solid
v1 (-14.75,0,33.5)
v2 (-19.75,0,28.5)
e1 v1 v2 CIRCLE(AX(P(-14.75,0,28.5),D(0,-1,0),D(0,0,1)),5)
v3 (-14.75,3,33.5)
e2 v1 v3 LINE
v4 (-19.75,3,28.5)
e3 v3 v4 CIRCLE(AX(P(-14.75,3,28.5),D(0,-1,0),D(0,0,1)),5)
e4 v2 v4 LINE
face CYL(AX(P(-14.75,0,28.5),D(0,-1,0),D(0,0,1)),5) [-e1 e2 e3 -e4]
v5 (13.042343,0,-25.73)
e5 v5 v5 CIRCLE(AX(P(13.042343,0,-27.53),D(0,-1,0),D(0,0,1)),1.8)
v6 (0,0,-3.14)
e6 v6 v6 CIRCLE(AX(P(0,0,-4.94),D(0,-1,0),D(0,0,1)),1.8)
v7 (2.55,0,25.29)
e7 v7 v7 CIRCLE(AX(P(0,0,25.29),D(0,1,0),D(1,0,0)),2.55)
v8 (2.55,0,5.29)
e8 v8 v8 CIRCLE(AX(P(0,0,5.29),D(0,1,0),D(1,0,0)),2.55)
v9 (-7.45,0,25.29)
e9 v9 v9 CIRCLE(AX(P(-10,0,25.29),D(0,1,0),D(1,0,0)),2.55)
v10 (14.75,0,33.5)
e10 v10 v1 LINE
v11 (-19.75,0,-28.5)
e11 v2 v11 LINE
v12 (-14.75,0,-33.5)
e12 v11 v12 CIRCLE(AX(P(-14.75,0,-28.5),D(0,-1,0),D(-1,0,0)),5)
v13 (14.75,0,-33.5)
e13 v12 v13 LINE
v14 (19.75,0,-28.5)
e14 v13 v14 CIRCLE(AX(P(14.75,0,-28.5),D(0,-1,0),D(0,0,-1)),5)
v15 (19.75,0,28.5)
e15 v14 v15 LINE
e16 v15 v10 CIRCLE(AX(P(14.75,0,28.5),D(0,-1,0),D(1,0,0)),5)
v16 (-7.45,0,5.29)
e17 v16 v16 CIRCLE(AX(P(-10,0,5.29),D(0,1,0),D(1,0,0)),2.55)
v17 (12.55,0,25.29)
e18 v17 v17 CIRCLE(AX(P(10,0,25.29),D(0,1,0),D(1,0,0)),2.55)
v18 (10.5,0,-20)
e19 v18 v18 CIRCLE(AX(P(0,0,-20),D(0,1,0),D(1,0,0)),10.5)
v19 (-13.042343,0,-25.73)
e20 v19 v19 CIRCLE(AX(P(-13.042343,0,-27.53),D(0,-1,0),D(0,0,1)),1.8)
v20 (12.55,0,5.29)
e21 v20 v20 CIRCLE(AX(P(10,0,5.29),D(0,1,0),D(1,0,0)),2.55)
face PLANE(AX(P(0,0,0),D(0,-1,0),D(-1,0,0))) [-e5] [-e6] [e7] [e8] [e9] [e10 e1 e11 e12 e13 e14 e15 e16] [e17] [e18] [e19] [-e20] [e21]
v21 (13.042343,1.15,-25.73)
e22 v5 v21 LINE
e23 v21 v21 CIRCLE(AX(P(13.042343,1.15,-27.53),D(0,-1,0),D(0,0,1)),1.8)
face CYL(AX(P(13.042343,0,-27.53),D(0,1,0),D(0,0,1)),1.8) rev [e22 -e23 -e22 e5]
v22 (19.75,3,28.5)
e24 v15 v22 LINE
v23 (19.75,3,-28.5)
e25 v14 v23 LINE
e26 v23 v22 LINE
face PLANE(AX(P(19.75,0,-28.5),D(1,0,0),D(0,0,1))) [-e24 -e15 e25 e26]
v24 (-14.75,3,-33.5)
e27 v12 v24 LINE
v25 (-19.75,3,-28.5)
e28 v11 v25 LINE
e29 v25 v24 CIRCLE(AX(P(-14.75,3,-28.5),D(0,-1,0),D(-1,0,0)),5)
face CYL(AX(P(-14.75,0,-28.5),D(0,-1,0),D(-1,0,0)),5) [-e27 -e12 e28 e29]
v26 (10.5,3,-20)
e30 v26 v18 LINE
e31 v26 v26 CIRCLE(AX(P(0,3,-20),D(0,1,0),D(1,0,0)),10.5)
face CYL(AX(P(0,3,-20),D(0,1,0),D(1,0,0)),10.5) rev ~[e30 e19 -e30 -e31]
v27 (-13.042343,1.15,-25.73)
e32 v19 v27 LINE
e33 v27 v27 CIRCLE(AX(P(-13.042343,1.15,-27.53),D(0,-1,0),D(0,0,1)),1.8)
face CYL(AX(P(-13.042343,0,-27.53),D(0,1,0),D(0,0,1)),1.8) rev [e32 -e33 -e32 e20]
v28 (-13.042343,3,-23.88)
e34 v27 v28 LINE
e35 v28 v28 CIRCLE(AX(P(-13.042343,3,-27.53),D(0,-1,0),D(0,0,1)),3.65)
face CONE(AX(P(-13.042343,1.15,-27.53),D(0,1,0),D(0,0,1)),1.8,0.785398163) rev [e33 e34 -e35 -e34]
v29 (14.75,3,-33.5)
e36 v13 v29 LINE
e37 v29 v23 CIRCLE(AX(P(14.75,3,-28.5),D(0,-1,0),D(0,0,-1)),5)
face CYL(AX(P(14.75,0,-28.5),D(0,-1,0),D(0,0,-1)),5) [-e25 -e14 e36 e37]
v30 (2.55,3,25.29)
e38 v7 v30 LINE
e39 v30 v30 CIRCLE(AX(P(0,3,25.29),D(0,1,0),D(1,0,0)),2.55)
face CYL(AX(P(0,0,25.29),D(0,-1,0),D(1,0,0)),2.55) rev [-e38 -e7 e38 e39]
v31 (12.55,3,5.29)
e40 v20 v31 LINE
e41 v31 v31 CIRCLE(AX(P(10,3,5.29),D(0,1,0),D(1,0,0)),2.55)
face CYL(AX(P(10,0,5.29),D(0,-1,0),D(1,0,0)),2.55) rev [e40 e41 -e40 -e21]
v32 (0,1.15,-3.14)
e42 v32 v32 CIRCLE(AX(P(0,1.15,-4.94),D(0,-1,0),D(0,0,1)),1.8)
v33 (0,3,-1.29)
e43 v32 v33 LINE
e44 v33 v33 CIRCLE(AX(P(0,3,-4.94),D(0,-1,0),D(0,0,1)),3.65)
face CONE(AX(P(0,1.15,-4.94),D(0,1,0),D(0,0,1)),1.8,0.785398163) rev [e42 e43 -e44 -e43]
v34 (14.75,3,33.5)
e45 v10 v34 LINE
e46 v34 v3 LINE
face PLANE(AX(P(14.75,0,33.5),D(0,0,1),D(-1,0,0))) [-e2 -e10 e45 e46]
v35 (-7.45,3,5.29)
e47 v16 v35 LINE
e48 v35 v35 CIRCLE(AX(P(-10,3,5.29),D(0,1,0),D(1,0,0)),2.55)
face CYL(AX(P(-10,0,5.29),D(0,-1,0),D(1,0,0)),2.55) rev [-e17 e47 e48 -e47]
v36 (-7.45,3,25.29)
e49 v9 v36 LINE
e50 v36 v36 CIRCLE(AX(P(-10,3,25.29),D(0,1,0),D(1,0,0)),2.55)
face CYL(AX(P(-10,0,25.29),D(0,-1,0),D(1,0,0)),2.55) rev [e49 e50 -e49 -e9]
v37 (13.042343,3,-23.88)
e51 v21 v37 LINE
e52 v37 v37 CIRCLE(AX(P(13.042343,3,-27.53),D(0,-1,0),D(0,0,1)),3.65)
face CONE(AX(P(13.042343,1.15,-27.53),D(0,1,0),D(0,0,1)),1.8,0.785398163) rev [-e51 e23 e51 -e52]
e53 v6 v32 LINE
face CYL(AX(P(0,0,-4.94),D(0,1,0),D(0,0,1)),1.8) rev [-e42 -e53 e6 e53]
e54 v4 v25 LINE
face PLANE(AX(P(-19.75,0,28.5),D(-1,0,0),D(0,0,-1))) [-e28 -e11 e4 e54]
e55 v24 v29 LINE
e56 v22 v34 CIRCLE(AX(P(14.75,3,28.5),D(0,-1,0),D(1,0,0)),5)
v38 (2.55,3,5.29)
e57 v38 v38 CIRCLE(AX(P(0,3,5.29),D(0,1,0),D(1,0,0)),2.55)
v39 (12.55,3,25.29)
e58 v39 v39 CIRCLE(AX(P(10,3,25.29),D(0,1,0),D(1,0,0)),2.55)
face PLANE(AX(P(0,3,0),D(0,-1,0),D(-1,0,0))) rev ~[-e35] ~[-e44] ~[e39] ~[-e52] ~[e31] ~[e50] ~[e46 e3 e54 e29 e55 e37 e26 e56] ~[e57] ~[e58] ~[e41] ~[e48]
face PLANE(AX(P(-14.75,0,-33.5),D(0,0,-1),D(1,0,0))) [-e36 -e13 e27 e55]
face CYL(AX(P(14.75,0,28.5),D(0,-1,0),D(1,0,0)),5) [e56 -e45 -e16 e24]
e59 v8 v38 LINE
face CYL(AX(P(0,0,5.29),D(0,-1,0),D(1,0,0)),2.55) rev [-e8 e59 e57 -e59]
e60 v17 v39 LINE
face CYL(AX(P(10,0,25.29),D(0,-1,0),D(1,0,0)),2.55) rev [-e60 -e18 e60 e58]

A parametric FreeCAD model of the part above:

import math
import FreeCAD as App
import Part
import Sketcher
from FreeCAD import Vector
Q = App.Units.Quantity

doc = App.newDocument("Part")
body = doc.addObject("PartDesign::Body", "Body")

sketch1 = body.newObject("Sketcher::SketchObject", "Sketch")
sketch1.AttachmentSupport = (doc.getObject("XZ_Plane"), [""])
sketch1.MapMode = "FlatFace"
sketch1.addGeometry(Part.LineSegment(Vector(-14.8, 33.5, 0), Vector(14.8, 33.5, 0)), False)
sketch1.addGeometry(Part.ArcOfCircle(Part.Circle(Vector(14.8, 28.5, 0), Vector(0, 0, 1), 5), math.radians(0), math.radians(90)), False)
sketch1.addGeometry(Part.LineSegment(Vector(19.8, 28.5, 0), Vector(19.8, -28.5, 0)), False)
sketch1.addGeometry(Part.ArcOfCircle(Part.Circle(Vector(14.8, -28.5, 0), Vector(0, 0, 1), 5), math.radians(-90), math.radians(0)), False)
sketch1.addGeometry(Part.LineSegment(Vector(14.8, -33.5, 0), Vector(-14.8, -33.5, 0)), False)
sketch1.addGeometry(Part.ArcOfCircle(Part.Circle(Vector(-14.8, -28.5, 0), Vector(0, 0, 1), 5), math.radians(180), math.radians(270)), False)
sketch1.addGeometry(Part.LineSegment(Vector(-19.8, -28.5, 0), Vector(-19.8, 28.5, 0)), False)
sketch1.addGeometry(Part.ArcOfCircle(Part.Circle(Vector(-14.8, 28.5, 0), Vector(0, 0, 1), 5), math.radians(90), math.radians(180)), False)
sketch1.addGeometry(Part.Circle(Vector(10, 25.3, 0), Vector(0, 0, 1), 2.5), False)
sketch1.addGeometry(Part.Circle(Vector(10, 5.3, 0), Vector(0, 0, 1), 2.5), False)
sketch1.addGeometry(Part.Circle(Vector(0, 25.3, 0), Vector(0, 0, 1), 2.5), False)
sketch1.addGeometry(Part.Circle(Vector(-10, 25.3, 0), Vector(0, 0, 1), 2.5), False)
sketch1.addGeometry(Part.Circle(Vector(0, 5.3, 0), Vector(0, 0, 1), 2.5), False)
sketch1.addGeometry(Part.Circle(Vector(-10, 5.3, 0), Vector(0, 0, 1), 2.5), False)
sketch1.addGeometry(Part.Circle(Vector(0, -26.5, 0), Vector(0, 0, 1), 2.5), False)
sketch1.addConstraint(Sketcher.Constraint("Tangent", 0, 2, 1, 2))
sketch1.addConstraint(Sketcher.Constraint("Tangent", 1, 1, 2, 1))
sketch1.addConstraint(Sketcher.Constraint("Tangent", 2, 2, 3, 2))
sketch1.addConstraint(Sketcher.Constraint("Tangent", 3, 1, 4, 1))
sketch1.addConstraint(Sketcher.Constraint("Tangent", 4, 2, 5, 2))
sketch1.addConstraint(Sketcher.Constraint("Tangent", 5, 1, 6, 1))
sketch1.addConstraint(Sketcher.Constraint("Tangent", 6, 2, 7, 2))
sketch1.addConstraint(Sketcher.Constraint("Tangent", 7, 1, 0, 1))
sketch1.addConstraint(Sketcher.Constraint("Horizontal", 0))
sketch1.addConstraint(Sketcher.Constraint("Vertical", 2))
sketch1.addConstraint(Sketcher.Constraint("Horizontal", 4))
sketch1.addConstraint(Sketcher.Constraint("Vertical", 6))
sketch1.addConstraint(Sketcher.Constraint("Equal", 1, 3))
sketch1.addConstraint(Sketcher.Constraint("Equal", 3, 5))
sketch1.addConstraint(Sketcher.Constraint("Equal", 5, 7))
sketch1.addConstraint(Sketcher.Constraint("Equal", 8, 9))
sketch1.addConstraint(Sketcher.Constraint("Equal", 9, 10))
sketch1.addConstraint(Sketcher.Constraint("Equal", 10, 11))
sketch1.addConstraint(Sketcher.Constraint("Equal", 11, 12))
sketch1.addConstraint(Sketcher.Constraint("Equal", 12, 13))
sketch1.addConstraint(Sketcher.Constraint("Equal", 13, 14))
sketch1.addConstraint(Sketcher.Constraint("Symmetric", 1, 3, 5, 3, -1, 1))
sketch1.addConstraint(Sketcher.Constraint("Symmetric", 8, 3, 11, 3, -2))
sketch1.addConstraint(Sketcher.Constraint("Symmetric", 9, 3, 13, 3, -2))
sketch1.addConstraint(Sketcher.Constraint("PointOnObject", 10, 3, -2))
sketch1.addConstraint(Sketcher.Constraint("PointOnObject", 12, 3, -2))
sketch1.addConstraint(Sketcher.Constraint("PointOnObject", 14, 3, -2))
sketch1.addConstraint(Sketcher.Constraint("Horizontal", 8, 3, 10, 3))
sketch1.addConstraint(Sketcher.Constraint("Horizontal", 9, 3, 12, 3))
sketch1.addConstraint(Sketcher.Constraint("Vertical", 8, 3, 9, 3))
sketch1.addConstraint(Sketcher.Constraint("Radius", 1, Q("5 mm")))
sketch1.addConstraint(Sketcher.Constraint("Diameter", 8, Q("5.1 mm")))
sketch1.addConstraint(Sketcher.Constraint("DistanceY", 2, 2, 2, 1, Q("57 mm")))
sketch1.addConstraint(Sketcher.Constraint("DistanceX", 0, 1, 0, 2, Q("29.5 mm")))
sketch1.addConstraint(Sketcher.Constraint("DistanceX", -1, 1, 8, 3, Q("10 mm")))
sketch1.addConstraint(Sketcher.Constraint("DistanceY", 9, 3, 8, 3, Q("20 mm")))
sketch1.addConstraint(Sketcher.Constraint("DistanceY", 3, 3, 14, 3, Q("2 mm")))
sketch1.addConstraint(Sketcher.Constraint("DistanceY", -1, 1, 8, 3, Q("25.29 mm")))
pad1 = body.newObject("PartDesign::Pad", "Pad")
pad1.Profile = sketch1
pad1.Length = 3
pad1.Reversed = True

sketch2 = body.newObject("Sketcher::SketchObject", "Sketch001")
sketch2.AttachmentSupport = (doc.getObject("XZ_Plane"), [""])
sketch2.MapMode = "FlatFace"
sketch2.AttachmentOffset = App.Placement(Vector(0, 0, -3), App.Rotation())
sketch2.addGeometry(Part.Circle(Vector(0, -20, 0), Vector(0, 0, 1), 10), False)
sketch2.addConstraint(Sketcher.Constraint("PointOnObject", 0, 3, -2))
sketch2.addConstraint(Sketcher.Constraint("Diameter", 0, Q("21 mm")))
sketch2.addConstraint(Sketcher.Constraint("DistanceY", 0, 3, -1, 1, Q("20 mm")))
pocket1 = body.newObject("PartDesign::Pocket", "Pocket")
pocket1.Profile = sketch2
pocket1.Type = "ThroughAll"
pocket1.Reversed = True

sketch3 = body.newObject("Sketcher::SketchObject", "Sketch002")
sketch3.AttachmentSupport = (doc.getObject("YZ_Plane"), [""])
sketch3.MapMode = "FlatFace"
sketch3.AttachmentOffset = App.Placement(Vector(0, 0, -13.042343), App.Rotation())
sketch3.addGeometry(Part.LineSegment(Vector(0, -27.5, 0), Vector(3, -27.5, 0)), False)
sketch3.addGeometry(Part.LineSegment(Vector(3, -27.5, 0), Vector(3, -23.9, 0)), False)
sketch3.addGeometry(Part.LineSegment(Vector(3, -23.9, 0), Vector(1.1, -25.7, 0)), False)
sketch3.addGeometry(Part.LineSegment(Vector(1.1, -25.7, 0), Vector(0, -25.7, 0)), False)
sketch3.addGeometry(Part.LineSegment(Vector(0, -25.7, 0), Vector(0, -27.5, 0)), False)
sketch3.addGeometry(Part.LineSegment(Vector(3, -27.5, 0), Vector(0, -27.5, 0)), True)
sketch3.addConstraint(Sketcher.Constraint("Coincident", 0, 2, 1, 1))
sketch3.addConstraint(Sketcher.Constraint("Coincident", 1, 2, 2, 1))
sketch3.addConstraint(Sketcher.Constraint("Coincident", 2, 2, 3, 1))
sketch3.addConstraint(Sketcher.Constraint("Coincident", 3, 2, 4, 1))
sketch3.addConstraint(Sketcher.Constraint("Coincident", 4, 2, 0, 1))
sketch3.addConstraint(Sketcher.Constraint("Horizontal", 0))
sketch3.addConstraint(Sketcher.Constraint("Vertical", 1))
sketch3.addConstraint(Sketcher.Constraint("Horizontal", 3))
sketch3.addConstraint(Sketcher.Constraint("Vertical", 4))
sketch3.addConstraint(Sketcher.Constraint("Horizontal", 5))
sketch3.addConstraint(Sketcher.Constraint("Coincident", 5, 1, 0, 2))
sketch3.addConstraint(Sketcher.Constraint("PointOnObject", 3, 2, -2))
sketch3.addConstraint(Sketcher.Constraint("PointOnObject", 5, 2, -2))
sketch3.addConstraint(Sketcher.Constraint("DistanceX", 0, 1, 0, 2, Q("3 mm")))
sketch3.addConstraint(Sketcher.Constraint("Angle", 2, Q("-135 deg")))
sketch3.addConstraint(Sketcher.Constraint("DistanceY", 4, 2, 4, 1, Q("1.8 mm")))
sketch3.addConstraint(Sketcher.Constraint("DistanceX", 3, 2, 3, 1, Q("1.15 mm")))
sketch3.addConstraint(Sketcher.Constraint("DistanceY", 0, 2, -1, 1, Q("27.53 mm")))
groove = body.newObject("PartDesign::Groove", "Groove")
groove.Profile = sketch3
groove.ReferenceAxis = (sketch3, ["Axis0"])
groove.Angle = 360
doc.recompute()

linearpattern = body.newObject("PartDesign::LinearPattern", "LinearPattern")
linearpattern.Originals = [groove]
linearpattern.Direction = (doc.getObject("X_Axis"), [""])
linearpattern.Mode = "offset"
linearpattern.Offset = 26.084685
linearpattern.Occurrences = 2
body.Tip = linearpattern
doc.recompute()

datumline = body.newObject("PartDesign::Line", "DatumLine")
datumline.Placement = App.Placement(Vector(0, 0, 0), App.Rotation(Vector(0, 0, 1), Vector(0.5, 0, 0.866025404)))
linearpattern2 = body.newObject("PartDesign::LinearPattern", "LinearPattern001")
linearpattern2.Originals = [groove]
linearpattern2.Direction = (datumline, [""])
linearpattern2.Mode = "offset"
linearpattern2.Offset = 26.084685
linearpattern2.Occurrences = 2
body.Tip = linearpattern2

doc.recompute()
